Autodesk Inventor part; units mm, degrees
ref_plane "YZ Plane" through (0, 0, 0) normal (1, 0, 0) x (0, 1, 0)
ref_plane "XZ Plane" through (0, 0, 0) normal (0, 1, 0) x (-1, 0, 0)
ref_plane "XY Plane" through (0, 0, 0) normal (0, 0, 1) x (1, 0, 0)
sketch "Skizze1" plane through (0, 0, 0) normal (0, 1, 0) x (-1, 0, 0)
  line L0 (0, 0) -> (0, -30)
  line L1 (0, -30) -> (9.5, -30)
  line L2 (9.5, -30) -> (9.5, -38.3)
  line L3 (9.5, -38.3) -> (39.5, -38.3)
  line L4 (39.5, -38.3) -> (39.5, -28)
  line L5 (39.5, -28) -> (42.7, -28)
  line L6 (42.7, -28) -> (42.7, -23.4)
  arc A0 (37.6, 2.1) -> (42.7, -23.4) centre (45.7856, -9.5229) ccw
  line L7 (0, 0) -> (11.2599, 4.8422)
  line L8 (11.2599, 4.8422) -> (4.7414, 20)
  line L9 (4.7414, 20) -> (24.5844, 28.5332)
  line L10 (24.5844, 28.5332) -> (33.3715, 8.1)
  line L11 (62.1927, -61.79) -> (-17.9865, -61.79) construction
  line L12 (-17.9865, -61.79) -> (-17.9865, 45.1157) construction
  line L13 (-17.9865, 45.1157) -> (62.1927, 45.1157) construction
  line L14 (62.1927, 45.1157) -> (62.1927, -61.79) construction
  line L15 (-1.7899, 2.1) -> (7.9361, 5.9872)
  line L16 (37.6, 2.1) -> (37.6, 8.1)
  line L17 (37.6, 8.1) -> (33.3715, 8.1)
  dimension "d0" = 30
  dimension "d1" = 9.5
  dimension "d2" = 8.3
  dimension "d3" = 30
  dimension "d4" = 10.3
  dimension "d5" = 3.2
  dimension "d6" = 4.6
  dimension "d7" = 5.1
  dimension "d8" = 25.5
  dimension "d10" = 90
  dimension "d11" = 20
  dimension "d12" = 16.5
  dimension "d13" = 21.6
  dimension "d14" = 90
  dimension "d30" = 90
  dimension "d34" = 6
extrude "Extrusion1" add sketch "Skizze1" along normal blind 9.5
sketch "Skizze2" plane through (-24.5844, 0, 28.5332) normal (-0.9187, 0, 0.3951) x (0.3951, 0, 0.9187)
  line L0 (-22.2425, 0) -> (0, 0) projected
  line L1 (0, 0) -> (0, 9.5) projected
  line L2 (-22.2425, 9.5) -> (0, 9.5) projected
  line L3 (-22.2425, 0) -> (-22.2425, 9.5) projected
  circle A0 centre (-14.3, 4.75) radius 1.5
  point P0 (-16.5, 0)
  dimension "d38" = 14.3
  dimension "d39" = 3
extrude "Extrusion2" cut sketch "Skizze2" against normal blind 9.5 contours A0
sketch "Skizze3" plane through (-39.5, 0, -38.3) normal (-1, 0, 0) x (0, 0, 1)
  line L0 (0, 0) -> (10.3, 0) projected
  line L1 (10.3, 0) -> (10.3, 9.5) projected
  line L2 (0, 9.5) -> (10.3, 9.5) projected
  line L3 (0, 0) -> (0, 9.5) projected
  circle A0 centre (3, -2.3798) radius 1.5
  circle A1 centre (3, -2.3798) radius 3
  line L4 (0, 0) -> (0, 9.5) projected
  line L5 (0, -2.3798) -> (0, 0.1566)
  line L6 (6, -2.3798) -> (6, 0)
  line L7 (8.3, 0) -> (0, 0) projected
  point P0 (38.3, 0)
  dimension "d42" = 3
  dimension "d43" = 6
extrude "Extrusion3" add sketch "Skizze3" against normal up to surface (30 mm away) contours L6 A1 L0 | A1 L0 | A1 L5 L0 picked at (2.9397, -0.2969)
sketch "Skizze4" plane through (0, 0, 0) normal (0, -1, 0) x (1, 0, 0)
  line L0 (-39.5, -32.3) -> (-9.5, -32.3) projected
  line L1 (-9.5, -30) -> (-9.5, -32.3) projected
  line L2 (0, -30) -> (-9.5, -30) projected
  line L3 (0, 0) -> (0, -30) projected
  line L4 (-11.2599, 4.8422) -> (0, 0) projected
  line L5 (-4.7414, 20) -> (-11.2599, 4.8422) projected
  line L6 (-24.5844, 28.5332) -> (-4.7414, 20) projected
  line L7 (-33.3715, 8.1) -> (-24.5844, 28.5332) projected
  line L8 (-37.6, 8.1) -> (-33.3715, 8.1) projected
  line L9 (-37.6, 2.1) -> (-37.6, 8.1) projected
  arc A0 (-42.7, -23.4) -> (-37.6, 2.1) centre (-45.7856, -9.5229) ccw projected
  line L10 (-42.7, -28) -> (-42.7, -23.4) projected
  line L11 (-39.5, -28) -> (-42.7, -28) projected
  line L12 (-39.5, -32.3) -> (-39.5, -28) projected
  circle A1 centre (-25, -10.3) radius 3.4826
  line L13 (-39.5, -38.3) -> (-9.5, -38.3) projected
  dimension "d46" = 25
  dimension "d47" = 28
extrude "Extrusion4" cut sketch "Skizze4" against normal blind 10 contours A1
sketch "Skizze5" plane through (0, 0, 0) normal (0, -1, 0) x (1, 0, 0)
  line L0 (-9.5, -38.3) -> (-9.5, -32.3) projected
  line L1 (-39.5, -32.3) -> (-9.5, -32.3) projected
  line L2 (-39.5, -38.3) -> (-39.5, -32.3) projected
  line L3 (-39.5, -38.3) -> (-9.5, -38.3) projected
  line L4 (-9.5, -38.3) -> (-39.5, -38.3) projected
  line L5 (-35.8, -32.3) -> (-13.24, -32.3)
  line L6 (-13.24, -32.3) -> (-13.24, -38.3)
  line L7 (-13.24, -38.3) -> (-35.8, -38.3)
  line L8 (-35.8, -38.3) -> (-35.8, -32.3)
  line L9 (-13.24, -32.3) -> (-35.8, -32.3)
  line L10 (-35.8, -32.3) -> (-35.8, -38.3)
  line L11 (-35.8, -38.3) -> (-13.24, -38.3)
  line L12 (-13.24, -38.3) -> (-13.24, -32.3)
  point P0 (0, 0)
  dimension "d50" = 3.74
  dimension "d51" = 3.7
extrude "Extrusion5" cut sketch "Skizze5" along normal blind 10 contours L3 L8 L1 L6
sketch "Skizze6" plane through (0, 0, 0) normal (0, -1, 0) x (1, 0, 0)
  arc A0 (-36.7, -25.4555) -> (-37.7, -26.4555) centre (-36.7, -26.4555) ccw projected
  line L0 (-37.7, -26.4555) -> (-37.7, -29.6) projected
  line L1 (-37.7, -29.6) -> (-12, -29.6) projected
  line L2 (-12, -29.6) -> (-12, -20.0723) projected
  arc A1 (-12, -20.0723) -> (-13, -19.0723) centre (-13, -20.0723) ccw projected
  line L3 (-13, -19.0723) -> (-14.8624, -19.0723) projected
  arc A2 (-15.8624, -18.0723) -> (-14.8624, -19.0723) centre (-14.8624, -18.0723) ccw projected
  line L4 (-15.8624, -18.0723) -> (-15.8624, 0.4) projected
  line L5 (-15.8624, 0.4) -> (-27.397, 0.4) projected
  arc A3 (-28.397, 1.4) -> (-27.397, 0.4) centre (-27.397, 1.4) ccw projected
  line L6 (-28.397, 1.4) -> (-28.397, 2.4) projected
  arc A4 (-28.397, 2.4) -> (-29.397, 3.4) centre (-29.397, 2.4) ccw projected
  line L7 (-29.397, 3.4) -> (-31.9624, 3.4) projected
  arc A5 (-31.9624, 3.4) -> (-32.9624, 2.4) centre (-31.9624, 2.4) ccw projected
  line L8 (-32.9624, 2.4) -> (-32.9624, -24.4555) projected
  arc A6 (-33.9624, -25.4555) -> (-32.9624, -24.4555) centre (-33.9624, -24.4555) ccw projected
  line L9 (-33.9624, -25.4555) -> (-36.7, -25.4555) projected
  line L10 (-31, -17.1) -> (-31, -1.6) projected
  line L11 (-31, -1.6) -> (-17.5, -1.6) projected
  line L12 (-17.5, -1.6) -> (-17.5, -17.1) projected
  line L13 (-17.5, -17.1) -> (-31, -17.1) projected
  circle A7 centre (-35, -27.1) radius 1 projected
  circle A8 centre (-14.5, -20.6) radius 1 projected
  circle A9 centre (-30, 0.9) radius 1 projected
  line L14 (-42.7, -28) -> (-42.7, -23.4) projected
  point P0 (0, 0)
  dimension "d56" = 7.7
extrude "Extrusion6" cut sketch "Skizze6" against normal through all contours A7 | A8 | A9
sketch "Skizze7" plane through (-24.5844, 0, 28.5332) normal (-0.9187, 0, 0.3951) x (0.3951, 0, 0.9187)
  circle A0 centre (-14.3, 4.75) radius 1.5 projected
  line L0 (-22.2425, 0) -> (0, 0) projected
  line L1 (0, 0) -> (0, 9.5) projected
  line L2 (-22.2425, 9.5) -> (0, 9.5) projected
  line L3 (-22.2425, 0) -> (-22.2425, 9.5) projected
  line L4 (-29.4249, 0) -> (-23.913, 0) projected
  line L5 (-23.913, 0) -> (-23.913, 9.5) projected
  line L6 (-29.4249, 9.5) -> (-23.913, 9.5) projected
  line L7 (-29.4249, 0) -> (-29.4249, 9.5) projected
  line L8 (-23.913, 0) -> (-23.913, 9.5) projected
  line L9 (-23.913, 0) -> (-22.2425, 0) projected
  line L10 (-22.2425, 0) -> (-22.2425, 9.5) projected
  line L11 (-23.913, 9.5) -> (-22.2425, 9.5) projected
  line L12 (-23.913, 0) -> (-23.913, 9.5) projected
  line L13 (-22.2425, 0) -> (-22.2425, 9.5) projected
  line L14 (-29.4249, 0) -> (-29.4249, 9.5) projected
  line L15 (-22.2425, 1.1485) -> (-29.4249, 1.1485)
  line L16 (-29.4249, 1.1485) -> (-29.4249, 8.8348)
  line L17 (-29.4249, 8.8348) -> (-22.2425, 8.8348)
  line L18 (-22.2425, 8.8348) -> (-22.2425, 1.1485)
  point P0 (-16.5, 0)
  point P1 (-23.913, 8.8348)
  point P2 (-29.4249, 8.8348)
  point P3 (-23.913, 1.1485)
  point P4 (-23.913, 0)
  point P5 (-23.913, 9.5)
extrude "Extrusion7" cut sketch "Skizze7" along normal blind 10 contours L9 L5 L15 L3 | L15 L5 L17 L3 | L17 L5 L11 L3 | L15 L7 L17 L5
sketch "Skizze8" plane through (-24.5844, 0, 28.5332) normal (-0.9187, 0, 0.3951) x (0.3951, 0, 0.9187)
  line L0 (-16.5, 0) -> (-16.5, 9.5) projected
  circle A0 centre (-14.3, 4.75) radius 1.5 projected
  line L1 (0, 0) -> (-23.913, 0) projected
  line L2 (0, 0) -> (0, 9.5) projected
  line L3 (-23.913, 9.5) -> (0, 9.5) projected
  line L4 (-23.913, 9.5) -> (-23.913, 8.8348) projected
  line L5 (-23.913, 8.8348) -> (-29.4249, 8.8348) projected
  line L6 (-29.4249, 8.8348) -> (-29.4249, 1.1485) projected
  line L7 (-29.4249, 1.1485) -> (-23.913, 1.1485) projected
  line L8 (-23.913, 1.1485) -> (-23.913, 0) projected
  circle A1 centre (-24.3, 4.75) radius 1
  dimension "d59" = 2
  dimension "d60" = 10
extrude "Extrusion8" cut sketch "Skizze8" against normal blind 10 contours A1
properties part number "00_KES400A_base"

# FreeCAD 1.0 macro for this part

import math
import FreeCAD as App
import Part
import Sketcher
from FreeCAD import Vector
Q = App.Units.Quantity

doc = App.newDocument("Part")
params = doc.addObject("Spreadsheet::Sheet", "Params")
for row, (alias, value) in enumerate([
    ("sketch1_width", "30 mm"),
    ("sketch1_height", "6 mm"),
    ("sketch1_width2", "9.5 mm"),
    ("sketch1_width3", "3.2 mm"),
    ("sketch1_height2", "8.3 mm"),
    ("pad1_length", "9.5 mm"),
    ("sketch2_diameter", "3 mm"),
    ("pocket1_length", "9.5 mm"),
    ("sketch3_diameter", "3 mm"),
    ("sketch3_radius", "3 mm"),
    ("pad2_length", "30 mm"),
    ("pocket2_length", "10 mm"),
    ("sketch5_height", "6 mm"),
    ("sketch5_width", "22.56 mm"),
    ("pocket3_length", "10 mm"),
    ("sketch6_diameter", "2 mm"),
    ("sketch7_height", "9.5 mm"),
    ("pocket5_length", "10 mm"),
    ("sketch8_diameter", "2 mm"),
    ("pocket6_length", "10 mm"),
], start=1):
    params.set(f"A{row}", alias)
    params.set(f"B{row}", "=" + value)
    params.setAlias(f"B{row}", alias)

body = doc.addObject("PartDesign::Body", "Body")

sketch1 = body.newObject("Sketcher::SketchObject", "Sketch")
sketch1.AttachmentSupport = (doc.getObject("XZ_Plane"), [""])
sketch1.MapMode = "FlatFace"
sketch1.addGeometry(Part.LineSegment(Vector(-11.3, 4.8, 0), Vector(0, 0, 0)), False)
sketch1.addGeometry(Part.LineSegment(Vector(0, 0, 0), Vector(0, -30, 0)), False)
sketch1.addGeometry(Part.LineSegment(Vector(0, -30, 0), Vector(-9.5, -30, 0)), False)
sketch1.addGeometry(Part.LineSegment(Vector(-9.5, -30, 0), Vector(-9.5, -38.3, 0)), False)
sketch1.addGeometry(Part.LineSegment(Vector(-9.5, -38.3, 0), Vector(-39.5, -38.3, 0)), False)
sketch1.addGeometry(Part.LineSegment(Vector(-39.5, -38.3, 0), Vector(-39.5, -28, 0)), False)
sketch1.addGeometry(Part.LineSegment(Vector(-39.5, -28, 0), Vector(-42.7, -28, 0)), False)
sketch1.addGeometry(Part.LineSegment(Vector(-42.7, -28, 0), Vector(-42.7, -23.4, 0)), False)
sketch1.addGeometry(Part.ArcOfCircle(Part.Circle(Vector(-45.8, -9.5, 0), Vector(0, 0, 1), 14.2), math.radians(-77), math.radians(55)), False)
sketch1.addGeometry(Part.LineSegment(Vector(-37.6, 2.1, 0), Vector(-37.6, 8.1, 0)), False)
sketch1.addGeometry(Part.LineSegment(Vector(-37.6, 8.1, 0), Vector(-33.4, 8.1, 0)), False)
sketch1.addGeometry(Part.LineSegment(Vector(-33.4, 8.1, 0), Vector(-24.6, 28.5, 0)), False)
sketch1.addGeometry(Part.LineSegment(Vector(-24.6, 28.5, 0), Vector(-4.7, 20, 0)), False)
sketch1.addGeometry(Part.LineSegment(Vector(-4.7, 20, 0), Vector(-11.3, 4.8, 0)), False)
sketch1.addConstraint(Sketcher.Constraint("Coincident", 0, 2, 1, 1))
sketch1.addConstraint(Sketcher.Constraint("Coincident", 1, 2, 2, 1))
sketch1.addConstraint(Sketcher.Constraint("Coincident", 2, 2, 3, 1))
sketch1.addConstraint(Sketcher.Constraint("Coincident", 3, 2, 4, 1))
sketch1.addConstraint(Sketcher.Constraint("Coincident", 4, 2, 5, 1))
sketch1.addConstraint(Sketcher.Constraint("Coincident", 5, 2, 6, 1))
sketch1.addConstraint(Sketcher.Constraint("Coincident", 6, 2, 7, 1))
sketch1.addConstraint(Sketcher.Constraint("Coincident", 7, 2, 8, 1))
sketch1.addConstraint(Sketcher.Constraint("Coincident", 8, 2, 9, 1))
sketch1.addConstraint(Sketcher.Constraint("Coincident", 9, 2, 10, 1))
sketch1.addConstraint(Sketcher.Constraint("Coincident", 10, 2, 11, 1))
sketch1.addConstraint(Sketcher.Constraint("Coincident", 11, 2, 12, 1))
sketch1.addConstraint(Sketcher.Constraint("Coincident", 12, 2, 13, 1))
sketch1.addConstraint(Sketcher.Constraint("Coincident", 13, 2, 0, 1))
sketch1.addConstraint(Sketcher.Constraint("Vertical", 1))
sketch1.addConstraint(Sketcher.Constraint("Horizontal", 2))
sketch1.addConstraint(Sketcher.Constraint("Vertical", 3))
sketch1.addConstraint(Sketcher.Constraint("Horizontal", 4))
sketch1.addConstraint(Sketcher.Constraint("Vertical", 5))
sketch1.addConstraint(Sketcher.Constraint("Horizontal", 6))
sketch1.addConstraint(Sketcher.Constraint("Vertical", 7))
sketch1.addConstraint(Sketcher.Constraint("Vertical", 9))
sketch1.addConstraint(Sketcher.Constraint("Horizontal", 10))
sketch1.addConstraint(Sketcher.Constraint("Coincident", 0, 2, -1, 1))
sketch1.addConstraint(Sketcher.Constraint("Perpendicular", 0, 11))
sketch1.addConstraint(Sketcher.Constraint("Perpendicular", 11, 12))
sketch1.addConstraint(Sketcher.Constraint("Perpendicular", 12, 13))
sketch1.addConstraint(Sketcher.Constraint("Equal", 4, 1))
sketch1.addConstraint(Sketcher.Constraint("DistanceX", 4, 2, 4, 1, Q("30 mm")))
sketch1.addConstraint(Sketcher.Constraint("DistanceY", 9, 1, 9, 2, Q("6 mm")))
sketch1.addConstraint(Sketcher.Constraint("DistanceX", 2, 2, 2, 1, Q("9.5 mm")))
sketch1.addConstraint(Sketcher.Constraint("DistanceX", 6, 2, 6, 1, Q("3.2 mm")))
sketch1.addConstraint(Sketcher.Constraint("DistanceY", 3, 2, 3, 1, Q("8.3 mm")))
sketch1.addConstraint(Sketcher.Constraint("DistanceY", 5, 1, 5, 2, Q("10.3 mm")))
sketch1.addConstraint(Sketcher.Constraint("DistanceY", 7, 1, 7, 2, Q("4.6 mm")))
sketch1.addConstraint(Sketcher.Constraint("DistanceY", -1, 1, 12, 2, Q("20 mm")))
sketch1.addConstraint(Sketcher.Constraint("Distance", 12, Q("21.6 mm")))
sketch1.addConstraint(Sketcher.Constraint("Distance", 13, Q("16.5 mm")))
sketch1.addConstraint(Sketcher.Constraint("DistanceX", 7, 2, 8, 2, Q("5.1 mm")))
sketch1.addConstraint(Sketcher.Constraint("DistanceY", 7, 2, 8, 2, Q("25.5 mm")))
sketch1.addConstraint(Sketcher.Constraint("Radius", 8, Q("14.216 mm")))
sketch1.addConstraint(Sketcher.Constraint("Angle", 0, Q("-23.2696 deg")))
sketch1.setExpression("Constraints[28]", "Params.sketch1_width")
sketch1.setExpression("Constraints[29]", "Params.sketch1_height")
sketch1.setExpression("Constraints[30]", "Params.sketch1_width2")
sketch1.setExpression("Constraints[31]", "Params.sketch1_width3")
sketch1.setExpression("Constraints[32]", "Params.sketch1_height2")
pad1 = body.newObject("PartDesign::Pad", "Pad")
pad1.Profile = sketch1
pad1.setExpression("Length", "Params.pad1_length")
pad1.Reversed = True

sketch2 = body.newObject("Sketcher::SketchObject", "Sketch001")
sketch2.Placement = App.Placement(Vector(-24.5844, 0, 28.5332), App.Rotation(Vector(0.39507754, 0, 0.918647776), Vector(0, 0.999999999, 0), Vector(-0.918647776, 0, 0.39507754), "ZXY"))
sketch2.addGeometry(Part.Circle(Vector(-14.3, 4.7, 0), Vector(0, 0, 1), 1.5), False)
sketch2.addConstraint(Sketcher.Constraint("Diameter", 0, Q("3 mm")))
sketch2.addConstraint(Sketcher.Constraint("DistanceX", 0, 3, -1, 1, Q("14.3 mm")))
sketch2.addConstraint(Sketcher.Constraint("DistanceY", -1, 1, 0, 3, Q("4.75 mm")))
sketch2.setExpression("Constraints[0]", "Params.sketch2_diameter")
pocket1 = body.newObject("PartDesign::Pocket", "Pocket")
pocket1.Profile = sketch2
pocket1.setExpression("Length", "Params.pocket1_length")

sketch3 = body.newObject("Sketcher::SketchObject", "Sketch002")
sketch3.AttachmentSupport = (doc.getObject("YZ_Plane"), [""])
sketch3.MapMode = "FlatFace"
sketch3.AttachmentOffset = App.Placement(Vector(0, 0, -39.5), App.Rotation())
sketch3.addGeometry(Part.LineSegment(Vector(-2.4, -32.3, 0), Vector(0, -32.3, 0)), False)
sketch3.addGeometry(Part.LineSegment(Vector(0, -32.3, 0), Vector(0, -38.3, 0)), False)
sketch3.addGeometry(Part.LineSegment(Vector(0, -38.3, 0), Vector(-2.4, -38.3, 0)), False)
sketch3.addGeometry(Part.ArcOfCircle(Part.Circle(Vector(-2.4, -35.3, 0), Vector(0, 0, 1), 3), math.radians(90), math.radians(270)), False)
sketch3.addGeometry(Part.Circle(Vector(-2.4, -35.3, 0), Vector(0, 0, 1), 1.5), False)
sketch3.addConstraint(Sketcher.Constraint("Coincident", 0, 2, 1, 1))
sketch3.addConstraint(Sketcher.Constraint("Coincident", 1, 2, 2, 1))
sketch3.addConstraint(Sketcher.Constraint("Tangent", 2, 2, 3, 2))
sketch3.addConstraint(Sketcher.Constraint("Tangent", 3, 1, 0, 1))
sketch3.addConstraint(Sketcher.Constraint("Horizontal", 0))
sketch3.addConstraint(Sketcher.Constraint("Vertical", 1))
sketch3.addConstraint(Sketcher.Constraint("Horizontal", 2))
sketch3.addConstraint(Sketcher.Constraint("Coincident", 4, 3, 3, 3))
sketch3.addConstraint(Sketcher.Constraint("PointOnObject", 0, 2, -2))
sketch3.addConstraint(Sketcher.Constraint("Diameter", 4, Q("3 mm")))
sketch3.addConstraint(Sketcher.Constraint("Radius", 3, Q("3 mm")))
sketch3.addConstraint(Sketcher.Constraint("DistanceY", 3, 3, -1, 1, Q("35.3 mm")))
sketch3.addConstraint(Sketcher.Constraint("DistanceX", 0, 1, 0, 2, Q("2.3798 mm")))
sketch3.setExpression("Constraints[9]", "Params.sketch3_diameter")
sketch3.setExpression("Constraints[10]", "Params.sketch3_radius")
pad2 = body.newObject("PartDesign::Pad", "Pad001")
pad2.Profile = sketch3
pad2.setExpression("Length", "Params.pad2_length")

sketch4 = body.newObject("Sketcher::SketchObject", "Sketch003")
sketch4.AttachmentSupport = (doc.getObject("XZ_Plane"), [""])
sketch4.MapMode = "FlatFace"
sketch4.addGeometry(Part.Circle(Vector(-25, -10.3, 0), Vector(0, 0, 1), 3.5), False)
sketch4.addConstraint(Sketcher.Constraint("DistanceX", 0, 3, -1, 1, Q("25 mm")))
sketch4.addConstraint(Sketcher.Constraint("Diameter", 0, Q("6.9652 mm")))
sketch4.addConstraint(Sketcher.Constraint("DistanceY", 0, 3, -1, 1, Q("10.3 mm")))
pocket2 = body.newObject("PartDesign::Pocket", "Pocket001")
pocket2.Profile = sketch4
pocket2.setExpression("Length", "Params.pocket2_length")

sketch5 = body.newObject("Sketcher::SketchObject", "Sketch004")
sketch5.AttachmentSupport = (doc.getObject("XZ_Plane"), [""])
sketch5.MapMode = "FlatFace"
sketch5.addGeometry(Part.LineSegment(Vector(-36, -38, 0), Vector(-13, -38, 0)), False)
sketch5.addGeometry(Part.LineSegment(Vector(-13, -38, 0), Vector(-13, -32, 0)), False)
sketch5.addGeometry(Part.LineSegment(Vector(-13, -32, 0), Vector(-36, -32, 0)), False)
sketch5.addGeometry(Part.LineSegment(Vector(-36, -32, 0), Vector(-36, -38, 0)), False)
sketch5.addConstraint(Sketcher.Constraint("Coincident", 0, 2, 1, 1))
sketch5.addConstraint(Sketcher.Constraint("Coincident", 1, 2, 2, 1))
sketch5.addConstraint(Sketcher.Constraint("Coincident", 2, 2, 3, 1))
sketch5.addConstraint(Sketcher.Constraint("Coincident", 3, 2, 0, 1))
sketch5.addConstraint(Sketcher.Constraint("Horizontal", 0))
sketch5.addConstraint(Sketcher.Constraint("Vertical", 1))
sketch5.addConstraint(Sketcher.Constraint("Horizontal", 2))
sketch5.addConstraint(Sketcher.Constraint("Vertical", 3))
sketch5.addConstraint(Sketcher.Constraint("DistanceY", 1, 1, 1, 2, Q("6 mm")))
sketch5.addConstraint(Sketcher.Constraint("DistanceX", 0, 1, 0, 2, Q("22.56 mm")))
sketch5.addConstraint(Sketcher.Constraint("DistanceY", 0, 2, -1, 1, Q("38.3 mm")))
sketch5.addConstraint(Sketcher.Constraint("DistanceX", 2, 2, -1, 1, Q("35.8 mm")))
sketch5.setExpression("Constraints[8]", "Params.sketch5_height")
sketch5.setExpression("Constraints[9]", "Params.sketch5_width")
pocket3 = body.newObject("PartDesign::Pocket", "Pocket002")
pocket3.Profile = sketch5
pocket3.setExpression("Length", "Params.pocket3_length")
pocket3.Reversed = True

sketch6 = body.newObject("Sketcher::SketchObject", "Sketch005")
sketch6.AttachmentSupport = (doc.getObject("XZ_Plane"), [""])
sketch6.MapMode = "FlatFace"
sketch6.addGeometry(Part.Circle(Vector(-35, -27.1, 0), Vector(0, 0, 1), 1), False)
sketch6.addGeometry(Part.Circle(Vector(-14.5, -20.6, 0), Vector(0, 0, 1), 1), False)
sketch6.addGeometry(Part.Circle(Vector(-30, 0.9, 0), Vector(0, 0, 1), 1), False)
sketch6.addConstraint(Sketcher.Constraint("Equal", 0, 1))
sketch6.addConstraint(Sketcher.Constraint("Equal", 1, 2))
sketch6.addConstraint(Sketcher.Constraint("Diameter", 0, Q("2 mm")))
sketch6.addConstraint(Sketcher.Constraint("DistanceX", 0, 3, -1, 1, Q("35 mm")))
sketch6.addConstraint(Sketcher.Constraint("DistanceX", 2, 3, -1, 1, Q("30 mm")))
sketch6.addConstraint(Sketcher.Constraint("DistanceY", 0, 3, 2, 3, Q("28 mm")))
sketch6.addConstraint(Sketcher.Constraint("DistanceY", 0, 3, -1, 1, Q("27.1 mm")))
sketch6.addConstraint(Sketcher.Constraint("DistanceX", 1, 3, -1, 1, Q("14.5 mm")))
sketch6.addConstraint(Sketcher.Constraint("DistanceY", 1, 3, -1, 1, Q("20.6 mm")))
sketch6.setExpression("Constraints[2]", "Params.sketch6_diameter")
pocket4 = body.newObject("PartDesign::Pocket", "Pocket003")
pocket4.Profile = sketch6
pocket4.Type = "ThroughAll"

sketch7 = body.newObject("Sketcher::SketchObject", "Sketch006")
sketch7.Placement = App.Placement(Vector(-24.5844, 0, 28.5332), App.Rotation(Vector(0.39507754, 0, 0.918647776), Vector(0, 0.999999999, 0), Vector(-0.918647776, 0, 0.39507754), "ZXY"))
sketch7.addGeometry(Part.LineSegment(Vector(-23.9, 0, 0), Vector(-22.2, 0, 0)), False)
sketch7.addGeometry(Part.LineSegment(Vector(-22.2, 0, 0), Vector(-22.2, 9.5, 0)), False)
sketch7.addGeometry(Part.LineSegment(Vector(-22.2, 9.5, 0), Vector(-23.9, 9.5, 0)), False)
sketch7.addGeometry(Part.LineSegment(Vector(-23.9, 9.5, 0), Vector(-23.9, 8.8, 0)), False)
sketch7.addGeometry(Part.LineSegment(Vector(-23.9, 8.8, 0), Vector(-29.4, 8.8, 0)), False)
sketch7.addGeometry(Part.LineSegment(Vector(-29.4, 8.8, 0), Vector(-29.4, 1.1, 0)), False)
sketch7.addGeometry(Part.LineSegment(Vector(-29.4, 1.1, 0), Vector(-23.9, 1.1, 0)), False)
sketch7.addGeometry(Part.LineSegment(Vector(-23.9, 1.1, 0), Vector(-23.9, 0, 0)), False)
sketch7.addConstraint(Sketcher.Constraint("Coincident", 0, 2, 1, 1))
sketch7.addConstraint(Sketcher.Constraint("Coincident", 1, 2, 2, 1))
sketch7.addConstraint(Sketcher.Constraint("Coincident", 2, 2, 3, 1))
sketch7.addConstraint(Sketcher.Constraint("Coincident", 3, 2, 4, 1))
sketch7.addConstraint(Sketcher.Constraint("Coincident", 4, 2, 5, 1))
sketch7.addConstraint(Sketcher.Constraint("Coincident", 5, 2, 6, 1))
sketch7.addConstraint(Sketcher.Constraint("Coincident", 6, 2, 7, 1))
sketch7.addConstraint(Sketcher.Constraint("Coincident", 7, 2, 0, 1))
sketch7.addConstraint(Sketcher.Constraint("Horizontal", 0))
sketch7.addConstraint(Sketcher.Constraint("Vertical", 1))
sketch7.addConstraint(Sketcher.Constraint("Horizontal", 2))
sketch7.addConstraint(Sketcher.Constraint("Vertical", 3))
sketch7.addConstraint(Sketcher.Constraint("Horizontal", 4))
sketch7.addConstraint(Sketcher.Constraint("Vertical", 5))
sketch7.addConstraint(Sketcher.Constraint("Horizontal", 6))
sketch7.addConstraint(Sketcher.Constraint("Vertical", 7))
sketch7.addConstraint(Sketcher.Constraint("PointOnObject", 0, 2, -1))
sketch7.addConstraint(Sketcher.Constraint("Vertical", 3, 2, 6, 2))
sketch7.addConstraint(Sketcher.Constraint("DistanceY", 1, 1, 1, 2, Q("9.5 mm")))
sketch7.addConstraint(Sketcher.Constraint("DistanceX", 4, 2, 4, 1, Q("5.512 mm")))
sketch7.addConstraint(Sketcher.Constraint("DistanceX", 0, 1, 0, 2, Q("1.6705 mm")))
sketch7.addConstraint(Sketcher.Constraint("DistanceY", 3, 2, 3, 1, Q("0.6652 mm")))
sketch7.addConstraint(Sketcher.Constraint("DistanceY", 5, 2, 5, 1, Q("7.6863 mm")))
sketch7.addConstraint(Sketcher.Constraint("DistanceX", 2, 2, -1, 1, Q("23.913 mm")))
sketch7.setExpression("Constraints[18]", "Params.sketch7_height")
pocket5 = body.newObject("PartDesign::Pocket", "Pocket004")
pocket5.Profile = sketch7
pocket5.setExpression("Length", "Params.pocket5_length")
pocket5.Reversed = True

sketch8 = body.newObject("Sketcher::SketchObject", "Sketch007")
sketch8.Placement = App.Placement(Vector(-24.5844, 0, 28.5332), App.Rotation(Vector(0.39507754, 0, 0.918647776), Vector(0, 0.999999999, 0), Vector(-0.918647776, 0, 0.39507754), "ZXY"))
sketch8.addGeometry(Part.Circle(Vector(-24.3, 4.7, 0), Vector(0, 0, 1), 1), False)
sketch8.addConstraint(Sketcher.Constraint("Diameter", 0, Q("2 mm")))
sketch8.addConstraint(Sketcher.Constraint("DistanceX", 0, 3, -1, 1, Q("24.3 mm")))
sketch8.addConstraint(Sketcher.Constraint("DistanceY", -1, 1, 0, 3, Q("4.75 mm")))
sketch8.setExpression("Constraints[0]", "Params.sketch8_diameter")
pocket6 = body.newObject("PartDesign::Pocket", "Pocket005")
pocket6.Profile = sketch8
pocket6.setExpression("Length", "Params.pocket6_length")

doc.recompute()
